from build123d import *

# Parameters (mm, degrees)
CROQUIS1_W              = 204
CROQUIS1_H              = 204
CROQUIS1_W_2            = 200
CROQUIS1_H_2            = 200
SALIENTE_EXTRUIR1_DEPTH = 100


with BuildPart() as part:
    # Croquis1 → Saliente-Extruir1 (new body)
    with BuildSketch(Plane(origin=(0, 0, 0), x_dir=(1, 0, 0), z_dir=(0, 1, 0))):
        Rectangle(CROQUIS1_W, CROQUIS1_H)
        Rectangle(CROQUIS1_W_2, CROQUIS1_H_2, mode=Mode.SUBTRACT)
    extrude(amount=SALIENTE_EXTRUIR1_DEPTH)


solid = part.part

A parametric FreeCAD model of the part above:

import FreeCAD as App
import Part
import Sketcher

doc = App.newDocument("Part")
body = doc.addObject("PartDesign::Body", "Body")

# Sketch on XZ plane
sketch1 = body.newObject("Sketcher::SketchObject", "Sketch")
sketch1.AttachmentSupport = (doc.getObject("XZ_Plane"), [""])
sketch1.MapMode = "FlatFace"
sketch1.addGeometry(Part.LineSegment(App.Vector(-102, -102, 0), App.Vector(-102, 102, 0)), False)
sketch1.addGeometry(Part.LineSegment(App.Vector(-102, 102, 0), App.Vector(102, 102, 0)), False)
sketch1.addGeometry(Part.LineSegment(App.Vector(102, 102, 0), App.Vector(102, -102, 0)), False)
sketch1.addGeometry(Part.LineSegment(App.Vector(102, -102, 0), App.Vector(-102, -102, 0)), False)
sketch1.addGeometry(Part.LineSegment(App.Vector(100, 100, 0), App.Vector(-100, 100, 0)), False)
sketch1.addGeometry(Part.LineSegment(App.Vector(-100, 100, 0), App.Vector(-100, -100, 0)), False)
sketch1.addGeometry(Part.LineSegment(App.Vector(-100, -100, 0), App.Vector(100, -100, 0)), False)
sketch1.addGeometry(Part.LineSegment(App.Vector(100, -100, 0), App.Vector(100, 100, 0)), False)
sketch1.addConstraint(Sketcher.Constraint("Coincident", 0, 2, 1, 1))
sketch1.addConstraint(Sketcher.Constraint("Coincident", 1, 2, 2, 1))
sketch1.addConstraint(Sketcher.Constraint("Coincident", 2, 2, 3, 1))
sketch1.addConstraint(Sketcher.Constraint("Coincident", 3, 2, 0, 1))
sketch1.addConstraint(Sketcher.Constraint("Coincident", 4, 2, 5, 1))
sketch1.addConstraint(Sketcher.Constraint("Coincident", 5, 2, 6, 1))
sketch1.addConstraint(Sketcher.Constraint("Coincident", 6, 2, 7, 1))
sketch1.addConstraint(Sketcher.Constraint("Coincident", 7, 2, 4, 1))
sketch1.addConstraint(Sketcher.Constraint("Vertical", 0))
sketch1.addConstraint(Sketcher.Constraint("Horizontal", 1))
sketch1.addConstraint(Sketcher.Constraint("Vertical", 2))
sketch1.addConstraint(Sketcher.Constraint("Horizontal", 3))
sketch1.addConstraint(Sketcher.Constraint("Horizontal", 4))
sketch1.addConstraint(Sketcher.Constraint("Vertical", 5))
sketch1.addConstraint(Sketcher.Constraint("Horizontal", 6))
sketch1.addConstraint(Sketcher.Constraint("Vertical", 7))
sketch1.addConstraint(Sketcher.Constraint("Symmetric", 0, 2, 2, 2, -1, 1))
sketch1.addConstraint(Sketcher.Constraint("Symmetric", 4, 2, 6, 2, -1, 1))
sketch1.addConstraint(Sketcher.Constraint("Equal", 3, 0))
sketch1.addConstraint(Sketcher.Constraint("Equal", 6, 5))
sketch1.addConstraint(Sketcher.Constraint("DistanceX", 1, 1, 1, 2, 204.0))
sketch1.addConstraint(Sketcher.Constraint("DistanceX", 4, 2, 4, 1, 200.0))
pad1 = body.newObject("PartDesign::Pad", "Pad")
pad1.Profile = sketch1
pad1.Length = 100
pad1.Reversed = True

doc.recompute()
